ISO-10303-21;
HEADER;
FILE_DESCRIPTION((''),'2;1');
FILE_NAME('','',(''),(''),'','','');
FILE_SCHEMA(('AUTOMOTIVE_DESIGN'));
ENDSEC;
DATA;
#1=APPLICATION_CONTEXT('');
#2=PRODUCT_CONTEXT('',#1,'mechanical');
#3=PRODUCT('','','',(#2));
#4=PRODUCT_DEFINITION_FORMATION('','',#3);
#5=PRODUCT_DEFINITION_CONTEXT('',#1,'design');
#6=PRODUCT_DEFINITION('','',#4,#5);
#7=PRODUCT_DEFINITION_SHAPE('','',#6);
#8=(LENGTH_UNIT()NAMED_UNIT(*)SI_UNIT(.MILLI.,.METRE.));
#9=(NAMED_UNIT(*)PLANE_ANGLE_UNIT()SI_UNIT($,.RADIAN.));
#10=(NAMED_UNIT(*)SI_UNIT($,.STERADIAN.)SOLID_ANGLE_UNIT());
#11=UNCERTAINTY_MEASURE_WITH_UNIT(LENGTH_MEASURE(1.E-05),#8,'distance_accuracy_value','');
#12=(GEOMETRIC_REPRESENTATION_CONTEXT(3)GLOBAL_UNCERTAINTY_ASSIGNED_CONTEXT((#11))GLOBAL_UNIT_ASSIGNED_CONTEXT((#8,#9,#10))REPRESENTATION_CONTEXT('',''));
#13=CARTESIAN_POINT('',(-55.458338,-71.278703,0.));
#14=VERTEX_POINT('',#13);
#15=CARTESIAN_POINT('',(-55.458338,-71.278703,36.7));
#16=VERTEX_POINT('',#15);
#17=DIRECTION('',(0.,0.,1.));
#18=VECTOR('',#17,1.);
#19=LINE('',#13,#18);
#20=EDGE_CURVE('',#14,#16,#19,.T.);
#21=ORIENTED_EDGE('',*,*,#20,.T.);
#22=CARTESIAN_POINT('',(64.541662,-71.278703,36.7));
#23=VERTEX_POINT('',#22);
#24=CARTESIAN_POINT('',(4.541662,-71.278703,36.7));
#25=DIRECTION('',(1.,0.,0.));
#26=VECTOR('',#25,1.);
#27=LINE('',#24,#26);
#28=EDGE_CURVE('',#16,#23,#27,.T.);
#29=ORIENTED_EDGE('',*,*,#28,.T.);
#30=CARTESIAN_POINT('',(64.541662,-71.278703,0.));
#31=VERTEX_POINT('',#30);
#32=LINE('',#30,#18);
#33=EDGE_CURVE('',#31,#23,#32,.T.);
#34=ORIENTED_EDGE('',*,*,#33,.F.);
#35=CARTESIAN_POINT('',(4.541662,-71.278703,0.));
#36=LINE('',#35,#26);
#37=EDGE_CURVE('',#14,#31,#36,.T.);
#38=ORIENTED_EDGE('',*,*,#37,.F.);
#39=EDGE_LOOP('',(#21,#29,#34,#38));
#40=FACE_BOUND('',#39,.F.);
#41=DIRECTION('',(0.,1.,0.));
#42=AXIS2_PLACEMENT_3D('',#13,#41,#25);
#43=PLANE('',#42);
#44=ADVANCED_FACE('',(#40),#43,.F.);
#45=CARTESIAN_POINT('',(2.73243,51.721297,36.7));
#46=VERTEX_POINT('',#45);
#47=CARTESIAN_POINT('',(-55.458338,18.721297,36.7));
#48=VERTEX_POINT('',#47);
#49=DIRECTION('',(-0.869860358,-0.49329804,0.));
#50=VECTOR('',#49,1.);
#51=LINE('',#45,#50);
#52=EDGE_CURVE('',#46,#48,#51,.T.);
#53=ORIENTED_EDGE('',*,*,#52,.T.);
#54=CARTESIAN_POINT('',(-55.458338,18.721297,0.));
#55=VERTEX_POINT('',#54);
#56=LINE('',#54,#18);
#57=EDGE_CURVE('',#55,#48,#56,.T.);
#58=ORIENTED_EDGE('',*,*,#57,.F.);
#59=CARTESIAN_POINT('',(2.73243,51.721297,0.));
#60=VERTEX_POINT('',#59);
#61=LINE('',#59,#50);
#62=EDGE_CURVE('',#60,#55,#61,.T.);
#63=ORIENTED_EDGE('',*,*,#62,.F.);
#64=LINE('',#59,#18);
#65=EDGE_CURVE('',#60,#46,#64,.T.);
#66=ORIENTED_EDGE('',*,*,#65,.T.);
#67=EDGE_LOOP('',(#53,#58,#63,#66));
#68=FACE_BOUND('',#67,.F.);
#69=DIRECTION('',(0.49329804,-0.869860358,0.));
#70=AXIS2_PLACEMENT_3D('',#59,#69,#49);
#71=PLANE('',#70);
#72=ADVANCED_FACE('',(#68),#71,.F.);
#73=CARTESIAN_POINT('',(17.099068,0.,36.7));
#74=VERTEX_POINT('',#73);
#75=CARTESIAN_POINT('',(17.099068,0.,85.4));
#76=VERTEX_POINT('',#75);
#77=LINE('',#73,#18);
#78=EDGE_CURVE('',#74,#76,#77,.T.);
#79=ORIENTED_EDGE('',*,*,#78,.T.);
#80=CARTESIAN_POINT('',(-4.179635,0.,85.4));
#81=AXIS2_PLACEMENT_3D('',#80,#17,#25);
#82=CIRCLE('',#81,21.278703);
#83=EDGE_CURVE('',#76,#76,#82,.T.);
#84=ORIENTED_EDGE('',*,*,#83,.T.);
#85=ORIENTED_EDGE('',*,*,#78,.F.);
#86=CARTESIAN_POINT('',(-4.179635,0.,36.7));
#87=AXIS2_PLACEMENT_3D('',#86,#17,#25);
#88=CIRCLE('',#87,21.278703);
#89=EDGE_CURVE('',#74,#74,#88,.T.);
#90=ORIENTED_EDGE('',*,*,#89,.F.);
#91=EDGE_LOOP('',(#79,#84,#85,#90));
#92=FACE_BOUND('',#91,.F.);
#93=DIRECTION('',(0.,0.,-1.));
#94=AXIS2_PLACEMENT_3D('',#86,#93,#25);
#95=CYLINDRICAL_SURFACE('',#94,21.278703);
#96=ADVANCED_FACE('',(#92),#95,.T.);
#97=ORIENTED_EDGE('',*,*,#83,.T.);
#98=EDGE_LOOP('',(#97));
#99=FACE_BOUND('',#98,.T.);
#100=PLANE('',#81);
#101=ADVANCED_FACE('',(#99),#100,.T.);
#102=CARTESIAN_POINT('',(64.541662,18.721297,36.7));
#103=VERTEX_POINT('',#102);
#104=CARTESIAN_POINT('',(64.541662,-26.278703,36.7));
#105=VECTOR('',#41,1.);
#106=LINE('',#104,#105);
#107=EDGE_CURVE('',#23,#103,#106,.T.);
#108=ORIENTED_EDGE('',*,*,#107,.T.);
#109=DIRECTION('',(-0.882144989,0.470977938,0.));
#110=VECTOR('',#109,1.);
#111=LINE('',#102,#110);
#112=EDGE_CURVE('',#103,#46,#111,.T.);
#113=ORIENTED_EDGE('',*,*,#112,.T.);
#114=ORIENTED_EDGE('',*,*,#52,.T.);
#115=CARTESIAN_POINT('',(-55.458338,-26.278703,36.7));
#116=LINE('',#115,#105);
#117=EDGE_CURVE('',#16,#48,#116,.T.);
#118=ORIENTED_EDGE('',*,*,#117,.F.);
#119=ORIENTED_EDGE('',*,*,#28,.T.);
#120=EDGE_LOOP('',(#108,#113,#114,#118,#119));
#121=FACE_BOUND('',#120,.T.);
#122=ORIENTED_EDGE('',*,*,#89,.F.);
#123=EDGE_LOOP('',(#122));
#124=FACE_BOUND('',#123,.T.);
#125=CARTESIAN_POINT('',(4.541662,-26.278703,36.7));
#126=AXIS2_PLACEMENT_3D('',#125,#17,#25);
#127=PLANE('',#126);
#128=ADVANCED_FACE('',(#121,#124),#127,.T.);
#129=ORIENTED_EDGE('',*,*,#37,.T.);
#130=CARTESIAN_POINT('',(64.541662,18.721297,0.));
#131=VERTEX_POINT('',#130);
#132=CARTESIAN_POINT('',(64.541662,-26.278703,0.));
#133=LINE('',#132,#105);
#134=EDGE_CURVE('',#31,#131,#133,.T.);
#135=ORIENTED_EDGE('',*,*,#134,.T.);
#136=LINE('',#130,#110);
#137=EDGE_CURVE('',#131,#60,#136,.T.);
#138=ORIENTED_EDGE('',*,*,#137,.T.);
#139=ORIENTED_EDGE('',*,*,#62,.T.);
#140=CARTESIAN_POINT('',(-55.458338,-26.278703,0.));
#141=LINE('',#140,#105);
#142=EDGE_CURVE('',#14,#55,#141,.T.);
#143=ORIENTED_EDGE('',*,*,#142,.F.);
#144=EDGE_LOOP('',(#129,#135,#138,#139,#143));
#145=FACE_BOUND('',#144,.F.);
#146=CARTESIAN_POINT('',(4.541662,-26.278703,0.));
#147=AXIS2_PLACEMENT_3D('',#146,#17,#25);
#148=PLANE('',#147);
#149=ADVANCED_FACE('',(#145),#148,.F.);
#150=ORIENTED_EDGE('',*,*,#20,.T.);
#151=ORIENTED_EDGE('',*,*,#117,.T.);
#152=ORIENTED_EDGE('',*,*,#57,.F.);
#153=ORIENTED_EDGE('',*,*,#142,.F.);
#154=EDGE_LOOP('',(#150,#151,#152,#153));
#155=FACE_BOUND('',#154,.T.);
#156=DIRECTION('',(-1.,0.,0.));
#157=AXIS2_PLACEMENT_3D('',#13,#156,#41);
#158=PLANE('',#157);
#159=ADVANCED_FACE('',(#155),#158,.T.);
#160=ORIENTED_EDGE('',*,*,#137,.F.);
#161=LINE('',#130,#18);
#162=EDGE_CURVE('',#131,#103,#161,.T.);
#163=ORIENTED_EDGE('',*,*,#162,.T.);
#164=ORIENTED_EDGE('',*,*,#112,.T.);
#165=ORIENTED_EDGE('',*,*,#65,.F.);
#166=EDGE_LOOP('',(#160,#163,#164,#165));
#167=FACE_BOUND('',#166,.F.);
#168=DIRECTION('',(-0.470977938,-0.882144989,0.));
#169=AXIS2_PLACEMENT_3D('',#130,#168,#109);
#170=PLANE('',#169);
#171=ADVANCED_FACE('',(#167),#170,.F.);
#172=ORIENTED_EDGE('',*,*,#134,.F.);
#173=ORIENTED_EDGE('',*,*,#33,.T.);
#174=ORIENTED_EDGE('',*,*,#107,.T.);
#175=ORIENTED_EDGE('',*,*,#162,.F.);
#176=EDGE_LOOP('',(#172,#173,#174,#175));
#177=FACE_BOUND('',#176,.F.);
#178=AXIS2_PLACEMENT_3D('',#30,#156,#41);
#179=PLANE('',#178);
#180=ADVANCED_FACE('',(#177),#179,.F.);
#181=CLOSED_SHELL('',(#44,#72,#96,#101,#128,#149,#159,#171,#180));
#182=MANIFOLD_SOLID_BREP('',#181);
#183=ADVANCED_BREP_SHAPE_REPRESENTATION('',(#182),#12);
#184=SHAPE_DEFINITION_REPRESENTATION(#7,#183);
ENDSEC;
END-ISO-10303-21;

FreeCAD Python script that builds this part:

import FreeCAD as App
import Part
import Sketcher
from FreeCAD import Vector


def add_polygon(sketch, points):
    """Adds a closed chain of lines whose ends are joined by coincident constraints."""
    first, n = sketch.GeometryCount, len(points)
    for a, b in zip(points, points[1:] + points[:1]):
        sketch.addGeometry(Part.LineSegment(App.Vector(*a, 0), App.Vector(*b, 0)), False)
    for i in range(n):
        sketch.addConstraint(Sketcher.Constraint("Coincident", first + i, 2, first + (i + 1) % n, 1))

doc = App.newDocument("Part")
body = doc.addObject("PartDesign::Body", "Body")

sketch1 = body.newObject("Sketcher::SketchObject", "Sketch")
sketch1.AttachmentSupport = (doc.getObject("XY_Plane"), [""])
sketch1.MapMode = "FlatFace"
add_polygon(sketch1, [(-55.458338, 18.721297), (-55.458338, -71.278703), (64.541662, -71.278703), (64.541662, 18.721297), (2.73243, 51.721297)])
sketch1.addConstraint([
    Sketcher.Constraint("Vertical", 0),
    Sketcher.Constraint("Horizontal", 1),
    Sketcher.Constraint("Vertical", 2),
    Sketcher.Constraint("Horizontal", 2, 2, 4, 2),
    Sketcher.Constraint("DistanceX", 1, 1, 1, 2, 120.0),
    Sketcher.Constraint("DistanceY", 0, 2, 0, 1, 90.0),
    Sketcher.Constraint("DistanceY", 2, 2, 3, 2, 33.0),
    Sketcher.Constraint("DistanceX", -1, 1, 3, 2, 2.73243),
    Sketcher.Constraint("Distance", 3, 70.066976),
    Sketcher.Constraint("DistanceY", 0, 2, -1, 1, 71.278703),
])
pad1 = body.newObject("PartDesign::Pad", "Pad")
pad1.Profile = sketch1
pad1.Length = 36.7

sketch2 = body.newObject("Sketcher::SketchObject", "Sketch001")
sketch2.AttachmentSupport = (doc.getObject("XY_Plane"), [""])
sketch2.MapMode = "FlatFace"
sketch2.AttachmentOffset = App.Placement(Vector(0, 0, 36.7), App.Rotation())
sketch2.addGeometry(Part.Circle(Vector(-4.179635, 0, 0), Vector(0, 0, 1), 21.278703), False)
sketch2.addConstraint([
    Sketcher.Constraint("PointOnObject", 0, 3, -1),
    Sketcher.Constraint("Diameter", 0, 42.557406),
    Sketcher.Constraint("DistanceX", 0, 3, -1, 1, 4.179635),
])
pad2 = body.newObject("PartDesign::Pad", "Pad001")
pad2.Profile = sketch2
pad2.Length = 48.7

doc.recompute()
